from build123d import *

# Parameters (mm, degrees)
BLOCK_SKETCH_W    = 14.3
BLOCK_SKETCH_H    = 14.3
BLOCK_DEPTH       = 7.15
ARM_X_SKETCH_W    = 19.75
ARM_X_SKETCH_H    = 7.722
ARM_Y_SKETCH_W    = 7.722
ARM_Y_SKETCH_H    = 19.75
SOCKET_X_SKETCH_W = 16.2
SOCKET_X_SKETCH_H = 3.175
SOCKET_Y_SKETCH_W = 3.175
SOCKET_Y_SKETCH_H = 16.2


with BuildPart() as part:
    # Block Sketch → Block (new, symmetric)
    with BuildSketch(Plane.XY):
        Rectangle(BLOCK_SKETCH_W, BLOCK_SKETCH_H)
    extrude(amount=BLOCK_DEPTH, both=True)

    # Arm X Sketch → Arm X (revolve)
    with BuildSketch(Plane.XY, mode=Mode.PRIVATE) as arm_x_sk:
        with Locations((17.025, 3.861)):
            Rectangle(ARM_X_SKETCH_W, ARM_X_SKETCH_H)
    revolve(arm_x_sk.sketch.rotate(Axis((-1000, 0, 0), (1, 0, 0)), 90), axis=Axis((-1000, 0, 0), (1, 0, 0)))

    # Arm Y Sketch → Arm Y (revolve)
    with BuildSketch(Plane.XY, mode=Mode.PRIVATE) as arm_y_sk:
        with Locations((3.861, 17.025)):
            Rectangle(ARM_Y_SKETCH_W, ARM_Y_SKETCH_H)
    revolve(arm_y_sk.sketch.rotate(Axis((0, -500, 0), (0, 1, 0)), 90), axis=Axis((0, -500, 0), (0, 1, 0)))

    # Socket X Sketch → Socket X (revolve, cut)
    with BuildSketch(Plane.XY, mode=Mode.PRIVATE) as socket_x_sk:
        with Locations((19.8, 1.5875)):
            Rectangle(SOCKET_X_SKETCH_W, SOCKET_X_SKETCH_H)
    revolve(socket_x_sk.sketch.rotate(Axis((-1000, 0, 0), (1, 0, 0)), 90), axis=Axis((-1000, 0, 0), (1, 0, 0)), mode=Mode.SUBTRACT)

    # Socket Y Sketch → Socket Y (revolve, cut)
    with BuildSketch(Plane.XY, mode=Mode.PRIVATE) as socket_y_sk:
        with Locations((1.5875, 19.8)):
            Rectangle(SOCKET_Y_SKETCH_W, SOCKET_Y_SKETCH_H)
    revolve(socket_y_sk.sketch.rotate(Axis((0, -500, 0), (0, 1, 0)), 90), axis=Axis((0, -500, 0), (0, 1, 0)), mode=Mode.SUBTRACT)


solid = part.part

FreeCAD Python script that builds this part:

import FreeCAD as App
import Part
import Sketcher

V = App.Vector
Q = App.Units.Quantity


def add_polygon(sketch, points):
    """Adds a closed chain of lines whose ends are joined by coincident constraints."""
    first, n = sketch.GeometryCount, len(points)
    for a, b in zip(points, points[1:] + points[:1]):
        sketch.addGeometry(Part.LineSegment(App.Vector(*a, 0), App.Vector(*b, 0)), False)
    for i in range(n):
        sketch.addConstraint(Sketcher.Constraint("Coincident", first + i, 2, first + (i + 1) % n, 1))

doc = App.newDocument("Part")
body = doc.addObject("PartDesign::Body", "Body")

sketch1 = body.newObject("Sketcher::SketchObject", "Sketch")
sketch1.AttachmentSupport = (doc.getObject("XY_Plane"), [""])
sketch1.MapMode = "FlatFace"
add_polygon(sketch1, [(-7.15, 7.15), (-7.15, -7.15), (7.15, -7.15), (7.15, 7.15)])
sketch1.addConstraint(Sketcher.Constraint("Vertical", 0))
sketch1.addConstraint(Sketcher.Constraint("Horizontal", 1))
sketch1.addConstraint(Sketcher.Constraint("Vertical", 2))
sketch1.addConstraint(Sketcher.Constraint("Horizontal", 3))
sketch1.addConstraint(Sketcher.Constraint("Symmetric", 0, 2, 2, 2, -1, 1))
sketch1.addConstraint(Sketcher.Constraint("Equal", 3, 0))
sketch1.addConstraint(Sketcher.Constraint("DistanceX", 1, 1, 1, 2, Q("14.3 mm")))
pad1 = body.newObject("PartDesign::Pad", "Pad")
pad1.Profile = sketch1
pad1.Length = 14.3
pad1.Midplane = True

sketch2 = body.newObject("Sketcher::SketchObject", "Sketch001")
sketch2.AttachmentSupport = (doc.getObject("XY_Plane"), [""])
sketch2.MapMode = "FlatFace"
add_polygon(sketch2, [(7.15, 7.722), (7.15, 0), (26.9, 0), (26.9, 7.722)])
sketch2.addConstraint(Sketcher.Constraint("Vertical", 0))
sketch2.addConstraint(Sketcher.Constraint("Horizontal", 1))
sketch2.addConstraint(Sketcher.Constraint("Vertical", 2))
sketch2.addConstraint(Sketcher.Constraint("Horizontal", 3))
sketch2.addConstraint(Sketcher.Constraint("PointOnObject", 0, 2, -1))
sketch2.addConstraint(Sketcher.Constraint("DistanceX", 1, 1, 1, 2, Q("19.75 mm")))
sketch2.addConstraint(Sketcher.Constraint("DistanceX", -1, 1, 1, 2, Q("26.9 mm")))
sketch2.addConstraint(Sketcher.Constraint("DistanceY", 0, 2, 0, 1, Q("7.722 mm")))
revolution = body.newObject("PartDesign::Revolution", "Revolution")
revolution.Profile = sketch2
revolution.ReferenceAxis = (sketch2, ["H_Axis"])
revolution.Angle = 360

sketch3 = body.newObject("Sketcher::SketchObject", "Sketch002")
sketch3.AttachmentSupport = (doc.getObject("XY_Plane"), [""])
sketch3.MapMode = "FlatFace"
add_polygon(sketch3, [(0, 26.9), (0, 7.15), (7.722, 7.15), (7.722, 26.9)])
sketch3.addConstraint(Sketcher.Constraint("Vertical", 0))
sketch3.addConstraint(Sketcher.Constraint("Horizontal", 1))
sketch3.addConstraint(Sketcher.Constraint("Vertical", 2))
sketch3.addConstraint(Sketcher.Constraint("Horizontal", 3))
sketch3.addConstraint(Sketcher.Constraint("PointOnObject", 0, 2, -2))
sketch3.addConstraint(Sketcher.Constraint("DistanceY", 0, 2, 0, 1, Q("19.75 mm")))
sketch3.addConstraint(Sketcher.Constraint("DistanceY", -1, 1, 2, 2, Q("26.9 mm")))
sketch3.addConstraint(Sketcher.Constraint("DistanceX", 1, 1, 1, 2, Q("7.722 mm")))
revolution2 = body.newObject("PartDesign::Revolution", "Revolution001")
revolution2.Profile = sketch3
revolution2.ReferenceAxis = (sketch3, ["V_Axis"])
revolution2.Angle = 360

sketch4 = body.newObject("Sketcher::SketchObject", "Sketch003")
sketch4.AttachmentSupport = (doc.getObject("XY_Plane"), [""])
sketch4.MapMode = "FlatFace"
add_polygon(sketch4, [(11.7, 3.175), (11.7, 0), (27.9, 0), (27.9, 3.175)])
sketch4.addConstraint(Sketcher.Constraint("Vertical", 0))
sketch4.addConstraint(Sketcher.Constraint("Horizontal", 1))
sketch4.addConstraint(Sketcher.Constraint("Vertical", 2))
sketch4.addConstraint(Sketcher.Constraint("Horizontal", 3))
sketch4.addConstraint(Sketcher.Constraint("PointOnObject", 0, 2, -1))
sketch4.addConstraint(Sketcher.Constraint("DistanceX", 1, 1, 1, 2, Q("16.2 mm")))
sketch4.addConstraint(Sketcher.Constraint("DistanceX", -1, 1, 0, 2, Q("11.7 mm")))
sketch4.addConstraint(Sketcher.Constraint("DistanceY", 0, 2, 0, 1, Q("3.175 mm")))
groove = body.newObject("PartDesign::Groove", "Groove")
groove.Profile = sketch4
groove.ReferenceAxis = (sketch4, ["H_Axis"])
groove.Angle = 360

sketch5 = body.newObject("Sketcher::SketchObject", "Sketch004")
sketch5.AttachmentSupport = (doc.getObject("XY_Plane"), [""])
sketch5.MapMode = "FlatFace"
add_polygon(sketch5, [(0, 27.9), (0, 11.7), (3.175, 11.7), (3.175, 27.9)])
sketch5.addConstraint(Sketcher.Constraint("Vertical", 0))
sketch5.addConstraint(Sketcher.Constraint("Horizontal", 1))
sketch5.addConstraint(Sketcher.Constraint("Vertical", 2))
sketch5.addConstraint(Sketcher.Constraint("Horizontal", 3))
sketch5.addConstraint(Sketcher.Constraint("PointOnObject", 0, 2, -2))
sketch5.addConstraint(Sketcher.Constraint("DistanceY", 0, 2, 0, 1, Q("16.2 mm")))
sketch5.addConstraint(Sketcher.Constraint("DistanceY", -1, 1, 0, 2, Q("11.7 mm")))
sketch5.addConstraint(Sketcher.Constraint("DistanceX", 1, 1, 1, 2, Q("3.175 mm")))
groove2 = body.newObject("PartDesign::Groove", "Groove001")
groove2.Profile = sketch5
groove2.ReferenceAxis = (sketch5, ["V_Axis"])
groove2.Angle = 360

doc.recompute()
